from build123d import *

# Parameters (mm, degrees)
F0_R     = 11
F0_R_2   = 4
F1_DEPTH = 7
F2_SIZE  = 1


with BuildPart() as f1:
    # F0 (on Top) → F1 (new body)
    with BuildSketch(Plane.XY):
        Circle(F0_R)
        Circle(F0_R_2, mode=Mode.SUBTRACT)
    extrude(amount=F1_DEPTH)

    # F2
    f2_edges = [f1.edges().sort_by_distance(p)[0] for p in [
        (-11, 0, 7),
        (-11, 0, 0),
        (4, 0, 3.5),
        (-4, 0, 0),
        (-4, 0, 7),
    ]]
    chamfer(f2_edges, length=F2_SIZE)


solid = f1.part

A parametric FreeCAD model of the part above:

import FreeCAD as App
import Part
import Sketcher

V = App.Vector
Q = App.Units.Quantity

doc = App.newDocument("Part")
body = doc.addObject("PartDesign::Body", "Body")

# Sketch on XY plane
sketch1 = body.newObject("Sketcher::SketchObject", "Sketch")
sketch1.AttachmentSupport = (doc.getObject("XY_Plane"), [""])
sketch1.MapMode = "FlatFace"
sketch1.addGeometry([
    Part.Circle(V(0, 0, 0), V(0, 0, 1), 11),
    Part.Circle(V(0, 0, 0), V(0, 0, 1), 4),
], False)
sketch1.addConstraint([
    Sketcher.Constraint("Coincident", 0, 3, -1, 1),
    Sketcher.Constraint("Coincident", 1, 3, -1, 1),
    Sketcher.Constraint("Diameter", 0, Q("22 mm")),
    Sketcher.Constraint("Diameter", 1, Q("8 mm")),
])
pad1 = body.newObject("PartDesign::Pad", "Pad")
pad1.Profile = sketch1
pad1.Length = 7
doc.recompute()

chamfer = body.newObject("PartDesign::Chamfer", "Chamfer")
chamfer.Base = (pad1, ["Edge1"])
chamfer.UseAllEdges = True
chamfer.Size = 1

doc.recompute()
